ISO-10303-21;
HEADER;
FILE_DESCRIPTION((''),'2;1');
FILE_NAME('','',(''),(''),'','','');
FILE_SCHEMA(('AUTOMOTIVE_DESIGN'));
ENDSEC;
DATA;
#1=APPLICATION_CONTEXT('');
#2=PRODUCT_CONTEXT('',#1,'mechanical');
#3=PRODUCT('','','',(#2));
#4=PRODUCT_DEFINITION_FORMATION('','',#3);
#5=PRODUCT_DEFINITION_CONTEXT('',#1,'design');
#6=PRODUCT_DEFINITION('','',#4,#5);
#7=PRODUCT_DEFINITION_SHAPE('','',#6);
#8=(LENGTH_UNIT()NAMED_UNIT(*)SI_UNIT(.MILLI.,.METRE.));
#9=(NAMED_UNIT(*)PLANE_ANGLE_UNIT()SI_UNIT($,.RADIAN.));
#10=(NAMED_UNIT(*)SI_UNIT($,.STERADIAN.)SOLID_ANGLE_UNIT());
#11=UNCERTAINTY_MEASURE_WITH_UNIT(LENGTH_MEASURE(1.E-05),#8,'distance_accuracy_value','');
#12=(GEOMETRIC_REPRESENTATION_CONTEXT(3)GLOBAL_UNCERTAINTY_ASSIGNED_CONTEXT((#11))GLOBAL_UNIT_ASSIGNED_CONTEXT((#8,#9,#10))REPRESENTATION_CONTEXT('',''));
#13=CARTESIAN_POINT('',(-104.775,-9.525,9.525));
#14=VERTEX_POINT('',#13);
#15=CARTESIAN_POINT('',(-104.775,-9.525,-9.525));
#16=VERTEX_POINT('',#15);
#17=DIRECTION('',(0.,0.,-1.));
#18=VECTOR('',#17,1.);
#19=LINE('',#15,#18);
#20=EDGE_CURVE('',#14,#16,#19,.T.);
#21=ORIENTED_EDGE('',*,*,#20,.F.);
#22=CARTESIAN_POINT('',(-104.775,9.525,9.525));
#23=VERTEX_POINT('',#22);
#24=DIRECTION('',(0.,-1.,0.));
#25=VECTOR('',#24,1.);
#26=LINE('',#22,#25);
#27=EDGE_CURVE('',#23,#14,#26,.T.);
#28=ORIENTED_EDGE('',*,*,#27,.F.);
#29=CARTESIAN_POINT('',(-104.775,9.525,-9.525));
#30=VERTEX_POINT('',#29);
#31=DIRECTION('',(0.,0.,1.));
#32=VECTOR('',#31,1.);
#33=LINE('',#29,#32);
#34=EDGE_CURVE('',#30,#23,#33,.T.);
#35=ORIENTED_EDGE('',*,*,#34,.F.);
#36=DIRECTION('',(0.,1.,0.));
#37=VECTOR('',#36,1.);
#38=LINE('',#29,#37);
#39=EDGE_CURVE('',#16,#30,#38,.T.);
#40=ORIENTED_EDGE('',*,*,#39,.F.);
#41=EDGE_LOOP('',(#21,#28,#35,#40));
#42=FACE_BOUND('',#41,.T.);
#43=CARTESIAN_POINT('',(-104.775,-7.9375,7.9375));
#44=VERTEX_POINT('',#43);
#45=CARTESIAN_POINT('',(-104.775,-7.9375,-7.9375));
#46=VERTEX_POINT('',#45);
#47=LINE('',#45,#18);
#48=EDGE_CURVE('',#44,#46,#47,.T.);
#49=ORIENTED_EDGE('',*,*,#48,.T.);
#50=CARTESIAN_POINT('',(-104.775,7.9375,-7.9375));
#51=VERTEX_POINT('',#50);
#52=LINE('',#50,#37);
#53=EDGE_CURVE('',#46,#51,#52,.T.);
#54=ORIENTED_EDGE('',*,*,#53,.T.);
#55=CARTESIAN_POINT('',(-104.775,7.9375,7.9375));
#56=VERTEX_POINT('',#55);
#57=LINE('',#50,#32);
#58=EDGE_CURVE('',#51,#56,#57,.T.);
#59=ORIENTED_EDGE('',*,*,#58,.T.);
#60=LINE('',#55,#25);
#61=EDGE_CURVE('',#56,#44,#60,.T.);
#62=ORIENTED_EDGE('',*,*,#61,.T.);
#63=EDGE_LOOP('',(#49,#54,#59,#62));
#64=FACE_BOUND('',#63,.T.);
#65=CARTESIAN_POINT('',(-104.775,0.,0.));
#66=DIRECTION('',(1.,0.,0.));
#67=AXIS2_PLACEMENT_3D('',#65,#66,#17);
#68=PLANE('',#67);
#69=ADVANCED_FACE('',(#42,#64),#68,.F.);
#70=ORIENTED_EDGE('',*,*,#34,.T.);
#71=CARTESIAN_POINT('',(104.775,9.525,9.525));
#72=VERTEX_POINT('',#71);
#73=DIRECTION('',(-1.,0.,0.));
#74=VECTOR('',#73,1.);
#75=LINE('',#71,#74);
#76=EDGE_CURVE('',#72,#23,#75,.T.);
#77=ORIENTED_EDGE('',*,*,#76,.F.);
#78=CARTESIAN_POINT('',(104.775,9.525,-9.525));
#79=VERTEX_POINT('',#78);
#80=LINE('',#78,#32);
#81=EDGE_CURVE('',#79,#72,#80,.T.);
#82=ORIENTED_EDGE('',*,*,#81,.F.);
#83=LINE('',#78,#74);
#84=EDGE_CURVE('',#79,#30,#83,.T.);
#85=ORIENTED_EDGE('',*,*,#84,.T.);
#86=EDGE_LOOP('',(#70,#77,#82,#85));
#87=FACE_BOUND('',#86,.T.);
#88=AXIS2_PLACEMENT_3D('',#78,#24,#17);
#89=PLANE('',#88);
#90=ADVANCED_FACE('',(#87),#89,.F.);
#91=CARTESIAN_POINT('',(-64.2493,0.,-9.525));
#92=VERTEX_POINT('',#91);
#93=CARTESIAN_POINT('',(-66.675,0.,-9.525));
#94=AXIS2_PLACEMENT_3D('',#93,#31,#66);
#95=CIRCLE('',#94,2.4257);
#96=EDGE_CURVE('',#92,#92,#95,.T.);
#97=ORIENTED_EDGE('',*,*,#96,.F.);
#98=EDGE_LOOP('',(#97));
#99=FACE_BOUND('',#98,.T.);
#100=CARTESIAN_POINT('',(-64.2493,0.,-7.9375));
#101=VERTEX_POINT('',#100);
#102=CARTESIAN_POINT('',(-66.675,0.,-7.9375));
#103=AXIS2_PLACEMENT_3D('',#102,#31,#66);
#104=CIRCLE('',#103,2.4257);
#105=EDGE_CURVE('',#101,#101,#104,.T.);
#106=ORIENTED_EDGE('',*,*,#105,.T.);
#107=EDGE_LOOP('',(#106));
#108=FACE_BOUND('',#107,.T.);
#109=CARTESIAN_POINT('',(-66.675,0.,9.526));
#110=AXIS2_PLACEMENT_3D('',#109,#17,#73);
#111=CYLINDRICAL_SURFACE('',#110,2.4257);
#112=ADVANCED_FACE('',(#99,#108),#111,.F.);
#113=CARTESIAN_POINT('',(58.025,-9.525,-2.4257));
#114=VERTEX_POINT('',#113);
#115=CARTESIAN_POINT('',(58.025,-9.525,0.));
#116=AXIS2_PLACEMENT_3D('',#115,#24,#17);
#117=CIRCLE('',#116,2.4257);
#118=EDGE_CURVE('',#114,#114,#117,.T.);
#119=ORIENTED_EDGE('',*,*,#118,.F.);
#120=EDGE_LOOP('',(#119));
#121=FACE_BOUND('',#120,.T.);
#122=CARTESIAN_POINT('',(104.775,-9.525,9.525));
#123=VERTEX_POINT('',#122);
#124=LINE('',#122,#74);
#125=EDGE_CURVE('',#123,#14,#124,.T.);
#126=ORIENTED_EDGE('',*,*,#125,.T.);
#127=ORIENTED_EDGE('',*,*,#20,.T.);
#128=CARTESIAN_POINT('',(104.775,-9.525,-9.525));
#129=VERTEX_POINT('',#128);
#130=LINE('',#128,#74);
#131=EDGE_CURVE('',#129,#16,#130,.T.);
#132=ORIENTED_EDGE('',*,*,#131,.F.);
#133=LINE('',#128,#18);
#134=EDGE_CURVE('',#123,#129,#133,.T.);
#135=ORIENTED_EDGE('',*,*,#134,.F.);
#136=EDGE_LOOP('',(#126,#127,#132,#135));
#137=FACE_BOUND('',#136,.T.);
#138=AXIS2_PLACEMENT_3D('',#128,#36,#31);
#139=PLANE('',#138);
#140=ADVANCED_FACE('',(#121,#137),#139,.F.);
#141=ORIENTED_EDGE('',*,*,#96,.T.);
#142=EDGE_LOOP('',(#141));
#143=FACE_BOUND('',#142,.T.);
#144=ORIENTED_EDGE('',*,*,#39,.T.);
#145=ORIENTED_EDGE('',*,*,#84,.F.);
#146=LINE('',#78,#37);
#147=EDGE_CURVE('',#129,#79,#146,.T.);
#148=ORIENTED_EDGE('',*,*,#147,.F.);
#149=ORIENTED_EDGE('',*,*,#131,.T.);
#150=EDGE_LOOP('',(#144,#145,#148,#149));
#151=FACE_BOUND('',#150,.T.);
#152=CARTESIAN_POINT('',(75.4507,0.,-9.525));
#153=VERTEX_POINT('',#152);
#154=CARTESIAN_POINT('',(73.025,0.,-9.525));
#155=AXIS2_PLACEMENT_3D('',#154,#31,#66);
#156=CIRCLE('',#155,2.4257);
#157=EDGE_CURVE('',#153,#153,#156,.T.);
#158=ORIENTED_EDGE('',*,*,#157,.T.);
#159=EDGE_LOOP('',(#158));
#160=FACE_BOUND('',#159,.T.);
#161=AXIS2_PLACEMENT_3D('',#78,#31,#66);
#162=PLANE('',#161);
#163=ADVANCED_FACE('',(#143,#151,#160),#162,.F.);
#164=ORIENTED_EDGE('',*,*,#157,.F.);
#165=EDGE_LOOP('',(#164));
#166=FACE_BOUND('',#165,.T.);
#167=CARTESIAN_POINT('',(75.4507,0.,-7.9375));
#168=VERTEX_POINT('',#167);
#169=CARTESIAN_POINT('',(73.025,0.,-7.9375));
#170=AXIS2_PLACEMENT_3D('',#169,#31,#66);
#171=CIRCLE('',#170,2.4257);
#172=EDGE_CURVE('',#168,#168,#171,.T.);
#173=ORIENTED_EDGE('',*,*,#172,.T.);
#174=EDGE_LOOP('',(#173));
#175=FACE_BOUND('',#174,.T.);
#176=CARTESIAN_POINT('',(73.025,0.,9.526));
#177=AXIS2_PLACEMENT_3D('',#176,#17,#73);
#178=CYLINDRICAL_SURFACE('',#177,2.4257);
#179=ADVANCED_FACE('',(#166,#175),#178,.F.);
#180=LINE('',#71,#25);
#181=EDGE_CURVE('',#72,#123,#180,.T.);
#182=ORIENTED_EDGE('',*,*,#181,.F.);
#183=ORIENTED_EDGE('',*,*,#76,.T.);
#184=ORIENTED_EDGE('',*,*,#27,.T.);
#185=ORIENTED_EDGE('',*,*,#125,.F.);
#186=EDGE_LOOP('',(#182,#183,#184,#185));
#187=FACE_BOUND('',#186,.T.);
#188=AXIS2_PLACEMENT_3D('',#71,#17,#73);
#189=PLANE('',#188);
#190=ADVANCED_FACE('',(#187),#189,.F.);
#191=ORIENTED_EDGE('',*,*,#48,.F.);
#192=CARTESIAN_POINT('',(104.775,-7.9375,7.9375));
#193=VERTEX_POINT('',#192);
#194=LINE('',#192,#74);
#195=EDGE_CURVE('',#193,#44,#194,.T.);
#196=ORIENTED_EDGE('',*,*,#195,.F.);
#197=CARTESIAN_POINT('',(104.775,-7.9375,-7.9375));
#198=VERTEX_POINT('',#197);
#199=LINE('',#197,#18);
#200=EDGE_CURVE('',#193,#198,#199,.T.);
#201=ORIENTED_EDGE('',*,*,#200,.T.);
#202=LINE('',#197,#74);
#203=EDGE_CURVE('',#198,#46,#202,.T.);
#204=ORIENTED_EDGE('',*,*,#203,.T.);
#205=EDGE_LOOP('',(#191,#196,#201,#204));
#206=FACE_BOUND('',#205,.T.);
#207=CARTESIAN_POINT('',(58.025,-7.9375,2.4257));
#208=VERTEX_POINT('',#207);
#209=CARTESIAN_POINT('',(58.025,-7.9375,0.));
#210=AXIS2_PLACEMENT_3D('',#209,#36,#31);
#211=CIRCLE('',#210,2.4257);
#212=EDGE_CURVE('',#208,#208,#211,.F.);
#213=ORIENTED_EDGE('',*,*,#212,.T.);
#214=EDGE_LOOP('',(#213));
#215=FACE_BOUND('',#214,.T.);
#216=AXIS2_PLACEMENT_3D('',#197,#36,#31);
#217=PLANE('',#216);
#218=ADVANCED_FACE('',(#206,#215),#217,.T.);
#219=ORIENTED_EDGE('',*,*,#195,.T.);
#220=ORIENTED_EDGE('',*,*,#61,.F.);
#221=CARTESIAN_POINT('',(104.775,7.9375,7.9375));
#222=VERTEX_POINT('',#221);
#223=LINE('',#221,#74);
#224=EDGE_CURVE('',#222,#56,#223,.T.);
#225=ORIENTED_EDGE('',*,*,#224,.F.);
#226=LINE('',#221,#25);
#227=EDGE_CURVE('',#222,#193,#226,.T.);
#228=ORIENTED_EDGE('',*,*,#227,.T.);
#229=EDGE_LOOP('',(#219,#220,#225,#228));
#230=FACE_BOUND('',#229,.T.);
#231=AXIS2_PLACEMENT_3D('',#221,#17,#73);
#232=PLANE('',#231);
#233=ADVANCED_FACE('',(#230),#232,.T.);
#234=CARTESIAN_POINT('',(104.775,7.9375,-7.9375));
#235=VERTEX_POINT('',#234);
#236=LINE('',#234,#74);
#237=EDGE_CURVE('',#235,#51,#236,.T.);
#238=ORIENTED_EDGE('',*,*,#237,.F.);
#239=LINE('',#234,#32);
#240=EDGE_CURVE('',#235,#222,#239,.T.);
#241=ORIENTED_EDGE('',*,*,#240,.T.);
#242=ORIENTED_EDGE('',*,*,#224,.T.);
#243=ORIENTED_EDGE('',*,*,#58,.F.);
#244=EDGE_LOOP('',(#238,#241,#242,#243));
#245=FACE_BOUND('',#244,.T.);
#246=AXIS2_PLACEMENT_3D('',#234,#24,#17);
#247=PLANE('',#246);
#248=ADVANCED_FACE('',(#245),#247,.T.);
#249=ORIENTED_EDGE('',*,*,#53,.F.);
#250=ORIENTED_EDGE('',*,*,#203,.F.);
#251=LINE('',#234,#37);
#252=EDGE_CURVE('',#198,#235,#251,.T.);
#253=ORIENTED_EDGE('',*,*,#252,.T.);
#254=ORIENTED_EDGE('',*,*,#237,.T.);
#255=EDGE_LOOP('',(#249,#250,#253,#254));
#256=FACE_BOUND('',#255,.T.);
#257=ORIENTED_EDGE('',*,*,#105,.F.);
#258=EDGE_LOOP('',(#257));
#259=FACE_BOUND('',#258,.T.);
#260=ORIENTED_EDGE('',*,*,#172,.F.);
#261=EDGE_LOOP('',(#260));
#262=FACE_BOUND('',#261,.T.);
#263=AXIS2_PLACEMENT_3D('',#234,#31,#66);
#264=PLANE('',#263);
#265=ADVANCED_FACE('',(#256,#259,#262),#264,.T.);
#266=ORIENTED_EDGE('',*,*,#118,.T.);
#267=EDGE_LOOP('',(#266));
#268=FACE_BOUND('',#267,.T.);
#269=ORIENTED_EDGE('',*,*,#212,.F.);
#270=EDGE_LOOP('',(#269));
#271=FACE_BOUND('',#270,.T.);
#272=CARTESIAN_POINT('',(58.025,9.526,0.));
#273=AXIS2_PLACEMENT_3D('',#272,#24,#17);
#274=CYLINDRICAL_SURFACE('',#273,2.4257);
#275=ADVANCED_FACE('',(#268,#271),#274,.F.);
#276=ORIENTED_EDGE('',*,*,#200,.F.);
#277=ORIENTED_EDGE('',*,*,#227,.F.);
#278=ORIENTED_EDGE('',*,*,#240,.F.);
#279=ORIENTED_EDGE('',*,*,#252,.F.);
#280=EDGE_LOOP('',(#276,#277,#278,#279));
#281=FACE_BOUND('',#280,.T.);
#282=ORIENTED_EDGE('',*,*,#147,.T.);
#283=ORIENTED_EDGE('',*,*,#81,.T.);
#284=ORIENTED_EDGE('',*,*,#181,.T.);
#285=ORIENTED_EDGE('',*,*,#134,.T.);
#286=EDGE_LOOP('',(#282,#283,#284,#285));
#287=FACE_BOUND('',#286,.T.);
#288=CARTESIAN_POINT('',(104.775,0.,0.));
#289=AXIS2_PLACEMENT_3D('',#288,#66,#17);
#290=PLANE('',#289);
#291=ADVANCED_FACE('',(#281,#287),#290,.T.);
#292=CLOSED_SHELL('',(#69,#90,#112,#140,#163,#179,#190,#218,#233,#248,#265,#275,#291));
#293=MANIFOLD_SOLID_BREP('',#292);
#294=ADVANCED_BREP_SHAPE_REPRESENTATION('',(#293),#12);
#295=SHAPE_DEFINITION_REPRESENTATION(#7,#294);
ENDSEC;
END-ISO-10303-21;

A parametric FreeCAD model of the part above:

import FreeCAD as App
import Part
import Sketcher

V = App.Vector
Q = App.Units.Quantity


def add_polygon(sketch, points):
    """Adds a closed chain of lines whose ends are joined by coincident constraints."""
    first, n = sketch.GeometryCount, len(points)
    for a, b in zip(points, points[1:] + points[:1]):
        sketch.addGeometry(Part.LineSegment(App.Vector(*a, 0), App.Vector(*b, 0)), False)
    for i in range(n):
        sketch.addConstraint(Sketcher.Constraint("Coincident", first + i, 2, first + (i + 1) % n, 1))

doc = App.newDocument("Part")
body = doc.addObject("PartDesign::Body", "Body")

# Sketch on YZ plane
sketch1 = body.newObject("Sketcher::SketchObject", "Sketch")
sketch1.AttachmentSupport = (doc.getObject("YZ_Plane"), [""])
sketch1.MapMode = "FlatFace"
add_polygon(sketch1, [(9.525, -9.525), (9.525, 9.525), (-9.525, 9.525), (-9.525, -9.525)])  # lines 0-3
add_polygon(sketch1, [(-7.9375, 7.9375), (7.9375, 7.9375), (7.9375, -7.9375), (-7.9375, -7.9375)])  # lines 4-7
sketch1.addConstraint([
    Sketcher.Constraint("Vertical", 0),
    Sketcher.Constraint("Horizontal", 1),
    Sketcher.Constraint("Vertical", 2),
    Sketcher.Constraint("Horizontal", 3),
    Sketcher.Constraint("Horizontal", 4),
    Sketcher.Constraint("Vertical", 5),
    Sketcher.Constraint("Horizontal", 6),
    Sketcher.Constraint("Vertical", 7),
    Sketcher.Constraint("Symmetric", 0, 2, 2, 2, -1, 1),
    Sketcher.Constraint("Symmetric", 4, 2, 6, 2, -1, 1),
    Sketcher.Constraint("Equal", 3, 0),
    Sketcher.Constraint("Equal", 6, 5),
    Sketcher.Constraint("DistanceX", 1, 2, 1, 1, Q("0.75 in")),
    Sketcher.Constraint("DistanceX", 4, 1, 4, 2, Q("0.625 in")),
])
pad1 = body.newObject("PartDesign::Pad", "Pad")
pad1.Profile = sketch1
pad1.Length = Q("8.25 in")
pad1.Midplane = True

# Sketch on XZ plane
sketch2 = body.newObject("Sketcher::SketchObject", "Sketch001")
sketch2.AttachmentSupport = (doc.getObject("XZ_Plane"), [""])
sketch2.MapMode = "FlatFace"
sketch2.AttachmentOffset = App.Placement(V(0, 0, 0.375 * 25.4), App.Rotation())
sketch2.addGeometry(Part.Circle(V(58.025, 0, 0), V(0, 0, 1), 2.4257), False)
sketch2.addConstraint([
    Sketcher.Constraint("PointOnObject", 0, 3, -1),
    Sketcher.Constraint("Diameter", 0, Q("0.191 in")),
    Sketcher.Constraint("DistanceX", -1, 1, 0, 3, Q("58.025 mm")),
])
pocket1 = body.newObject("PartDesign::Pocket", "Pocket")
pocket1.Profile = sketch2
pocket1.Type = "UpToFirst"

# Sketch on XY plane
sketch3 = body.newObject("Sketcher::SketchObject", "Sketch002")
sketch3.AttachmentSupport = (doc.getObject("XY_Plane"), [""])
sketch3.MapMode = "FlatFace"
sketch3.AttachmentOffset = App.Placement(V(0, 0, -0.375 * 25.4), App.Rotation())
sketch3.addGeometry(Part.Circle(V(-66.675, 0, 0), V(0, 0, 1), 2.4257), False)
sketch3.addConstraint([
    Sketcher.Constraint("PointOnObject", 0, 3, -1),
    Sketcher.Constraint("Diameter", 0, Q("0.191 in")),
    Sketcher.Constraint("DistanceX", 0, 3, -1, 1, Q("2.625 in")),
])
pocket2 = body.newObject("PartDesign::Pocket", "Pocket001")
pocket2.Profile = sketch3
pocket2.Type = "UpToFirst"
pocket2.Reversed = True

# Sketch on XY plane
sketch4 = body.newObject("Sketcher::SketchObject", "Sketch003")
sketch4.AttachmentSupport = (doc.getObject("XY_Plane"), [""])
sketch4.MapMode = "FlatFace"
sketch4.AttachmentOffset = App.Placement(V(0, 0, -0.375 * 25.4), App.Rotation())
sketch4.addGeometry(Part.Circle(V(73.025, 0, 0), V(0, 0, 1), 2.4257), False)
sketch4.addConstraint([
    Sketcher.Constraint("PointOnObject", 0, 3, -1),
    Sketcher.Constraint("Diameter", 0, Q("0.191 in")),
    Sketcher.Constraint("DistanceX", -1, 1, 0, 3, Q("2.875 in")),
])
pocket3 = body.newObject("PartDesign::Pocket", "Pocket002")
pocket3.Profile = sketch4
pocket3.Type = "UpToFirst"
pocket3.Reversed = True

doc.recompute()
